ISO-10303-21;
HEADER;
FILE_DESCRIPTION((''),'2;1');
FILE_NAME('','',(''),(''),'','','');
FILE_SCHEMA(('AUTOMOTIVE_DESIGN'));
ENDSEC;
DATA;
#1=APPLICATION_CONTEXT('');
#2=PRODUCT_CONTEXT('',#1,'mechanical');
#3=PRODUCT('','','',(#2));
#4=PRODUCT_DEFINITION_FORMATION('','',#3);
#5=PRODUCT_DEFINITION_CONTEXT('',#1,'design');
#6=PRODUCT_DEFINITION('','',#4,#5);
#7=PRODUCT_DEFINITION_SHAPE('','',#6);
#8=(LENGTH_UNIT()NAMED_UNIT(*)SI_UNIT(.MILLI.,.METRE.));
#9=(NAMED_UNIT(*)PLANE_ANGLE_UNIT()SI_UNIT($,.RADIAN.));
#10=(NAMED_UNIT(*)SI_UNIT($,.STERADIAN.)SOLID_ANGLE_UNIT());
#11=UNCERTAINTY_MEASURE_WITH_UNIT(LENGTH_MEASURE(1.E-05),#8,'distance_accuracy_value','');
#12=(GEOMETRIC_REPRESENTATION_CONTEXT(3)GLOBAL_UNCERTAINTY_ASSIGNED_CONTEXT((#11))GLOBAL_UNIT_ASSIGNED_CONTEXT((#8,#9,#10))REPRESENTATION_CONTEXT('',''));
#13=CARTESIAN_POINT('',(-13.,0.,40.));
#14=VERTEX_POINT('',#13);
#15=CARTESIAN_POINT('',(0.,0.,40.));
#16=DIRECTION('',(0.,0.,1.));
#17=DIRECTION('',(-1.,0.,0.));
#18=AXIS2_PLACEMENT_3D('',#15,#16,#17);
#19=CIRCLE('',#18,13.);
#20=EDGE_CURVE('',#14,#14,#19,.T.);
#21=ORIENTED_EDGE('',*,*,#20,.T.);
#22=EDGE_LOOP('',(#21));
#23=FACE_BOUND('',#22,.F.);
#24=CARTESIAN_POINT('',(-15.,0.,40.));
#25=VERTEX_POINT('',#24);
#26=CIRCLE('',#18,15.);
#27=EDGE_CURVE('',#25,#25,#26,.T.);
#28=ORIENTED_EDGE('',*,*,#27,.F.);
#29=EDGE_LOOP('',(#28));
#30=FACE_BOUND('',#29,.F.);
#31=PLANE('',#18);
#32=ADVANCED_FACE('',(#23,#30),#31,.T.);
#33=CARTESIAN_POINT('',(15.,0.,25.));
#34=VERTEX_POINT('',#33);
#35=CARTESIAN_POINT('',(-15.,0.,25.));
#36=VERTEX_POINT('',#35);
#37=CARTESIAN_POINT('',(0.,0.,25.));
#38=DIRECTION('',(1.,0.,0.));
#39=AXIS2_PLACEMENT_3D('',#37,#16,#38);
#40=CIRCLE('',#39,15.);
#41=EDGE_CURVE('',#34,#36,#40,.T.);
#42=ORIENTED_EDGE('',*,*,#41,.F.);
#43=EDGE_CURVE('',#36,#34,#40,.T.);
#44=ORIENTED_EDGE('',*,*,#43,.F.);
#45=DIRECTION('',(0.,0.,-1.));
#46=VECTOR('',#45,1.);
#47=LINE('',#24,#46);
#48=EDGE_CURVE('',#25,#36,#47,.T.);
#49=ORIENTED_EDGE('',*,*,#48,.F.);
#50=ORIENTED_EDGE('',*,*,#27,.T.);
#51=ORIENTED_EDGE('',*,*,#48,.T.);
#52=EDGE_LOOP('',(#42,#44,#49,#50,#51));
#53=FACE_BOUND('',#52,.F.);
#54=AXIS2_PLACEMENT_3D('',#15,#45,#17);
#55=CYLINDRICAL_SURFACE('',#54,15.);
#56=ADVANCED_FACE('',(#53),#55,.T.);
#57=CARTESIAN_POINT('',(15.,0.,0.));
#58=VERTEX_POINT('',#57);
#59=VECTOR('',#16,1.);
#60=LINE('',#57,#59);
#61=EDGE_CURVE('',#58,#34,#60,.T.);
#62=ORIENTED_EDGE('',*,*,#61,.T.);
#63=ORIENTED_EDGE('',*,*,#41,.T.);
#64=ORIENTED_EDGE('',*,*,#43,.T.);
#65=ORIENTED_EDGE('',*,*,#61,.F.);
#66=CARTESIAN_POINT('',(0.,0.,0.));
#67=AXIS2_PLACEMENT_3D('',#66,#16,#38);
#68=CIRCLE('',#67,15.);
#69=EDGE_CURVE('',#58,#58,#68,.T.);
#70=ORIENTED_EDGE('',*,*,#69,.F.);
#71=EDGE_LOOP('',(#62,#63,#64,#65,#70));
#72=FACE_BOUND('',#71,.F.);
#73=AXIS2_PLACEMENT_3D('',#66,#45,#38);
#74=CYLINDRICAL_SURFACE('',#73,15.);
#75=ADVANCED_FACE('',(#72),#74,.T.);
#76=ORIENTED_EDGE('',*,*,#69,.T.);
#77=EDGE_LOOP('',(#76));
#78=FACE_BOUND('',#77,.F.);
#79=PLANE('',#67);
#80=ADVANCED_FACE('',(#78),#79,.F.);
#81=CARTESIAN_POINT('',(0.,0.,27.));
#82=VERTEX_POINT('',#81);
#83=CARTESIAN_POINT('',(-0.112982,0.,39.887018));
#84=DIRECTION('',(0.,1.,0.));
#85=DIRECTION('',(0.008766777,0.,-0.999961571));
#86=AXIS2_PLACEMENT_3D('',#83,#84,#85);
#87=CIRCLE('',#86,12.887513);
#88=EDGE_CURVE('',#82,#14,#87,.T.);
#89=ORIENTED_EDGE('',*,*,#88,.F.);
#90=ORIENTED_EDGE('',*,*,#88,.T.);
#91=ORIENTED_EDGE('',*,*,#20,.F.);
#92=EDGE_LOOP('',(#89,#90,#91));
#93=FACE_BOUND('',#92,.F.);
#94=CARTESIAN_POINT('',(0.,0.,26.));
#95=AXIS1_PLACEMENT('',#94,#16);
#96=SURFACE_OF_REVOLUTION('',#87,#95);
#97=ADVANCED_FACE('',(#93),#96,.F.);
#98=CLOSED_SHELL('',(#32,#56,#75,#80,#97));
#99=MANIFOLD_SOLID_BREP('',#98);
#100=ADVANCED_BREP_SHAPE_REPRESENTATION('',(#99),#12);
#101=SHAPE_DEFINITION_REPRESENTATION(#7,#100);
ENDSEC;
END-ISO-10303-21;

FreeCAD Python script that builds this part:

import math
import FreeCAD as App
import Part
import Sketcher

V = App.Vector
Q = App.Units.Quantity

doc = App.newDocument("Part")
body = doc.addObject("PartDesign::Body", "Body")

# Sketch on XY plane
sketch1 = body.newObject("Sketcher::SketchObject", "Sketch")
sketch1.AttachmentSupport = (doc.getObject("XY_Plane"), [""])
sketch1.MapMode = "FlatFace"
sketch1.addGeometry(Part.Circle(V(0, 0, 0), V(0, 0, 1), 15), False)
sketch1.addConstraint(Sketcher.Constraint("Coincident", 0, 3, -1, 1))
sketch1.addConstraint(Sketcher.Constraint("Diameter", 0, Q("30 mm")))
pad1 = body.newObject("PartDesign::Pad", "Pad")
pad1.Profile = sketch1
pad1.Length = 25

# Sketch on XZ plane
sketch2 = body.newObject("Sketcher::SketchObject", "Sketch001")
sketch2.AttachmentSupport = (doc.getObject("XZ_Plane"), [""])
sketch2.MapMode = "FlatFace"
sketch2.addGeometry(Part.LineSegment(V(-15, 40, 0), V(-15, 25, 0)), False)
sketch2.addGeometry(Part.LineSegment(V(-15, 25, 0), V(0, 25, 0)), False)
sketch2.addGeometry(Part.LineSegment(V(0, 25, 0), V(0, 27, 0)), False)
sketch2.addGeometry(Part.ArcOfCircle(Part.Circle(V(-0.1, 39.9, 0), V(0, 0, 1), 12.9), math.radians(179), math.radians(271)), False)
sketch2.addGeometry(Part.LineSegment(V(-13, 40, 0), V(-15, 40, 0)), False)
sketch2.addConstraint(Sketcher.Constraint("Coincident", 0, 2, 1, 1))
sketch2.addConstraint(Sketcher.Constraint("Coincident", 1, 2, 2, 1))
sketch2.addConstraint(Sketcher.Constraint("Coincident", 2, 2, 3, 2))
sketch2.addConstraint(Sketcher.Constraint("Coincident", 3, 1, 4, 1))
sketch2.addConstraint(Sketcher.Constraint("Coincident", 4, 2, 0, 1))
sketch2.addConstraint(Sketcher.Constraint("Vertical", 0))
sketch2.addConstraint(Sketcher.Constraint("Horizontal", 1))
sketch2.addConstraint(Sketcher.Constraint("Vertical", 2))
sketch2.addConstraint(Sketcher.Constraint("Horizontal", 4))
sketch2.addConstraint(Sketcher.Constraint("PointOnObject", 1, 2, -2))
sketch2.addConstraint(Sketcher.Constraint("Equal", 1, 0))
sketch2.addConstraint(Sketcher.Constraint("Equal", 4, 2))
sketch2.addConstraint(Sketcher.Constraint("DistanceX", 1, 1, 1, 2, Q("15 mm")))
sketch2.addConstraint(Sketcher.Constraint("DistanceX", 4, 2, 4, 1, Q("2 mm")))
sketch2.addConstraint(Sketcher.Constraint("DistanceY", -1, 1, 0, 2, Q("25 mm")))
sketch2.addConstraint(Sketcher.Constraint("Radius", 3, Q("12.887513 mm")))
revolution = body.newObject("PartDesign::Revolution", "Revolution")
revolution.Profile = sketch2
revolution.ReferenceAxis = (sketch2, ["V_Axis"])
revolution.Angle = 360

doc.recompute()
